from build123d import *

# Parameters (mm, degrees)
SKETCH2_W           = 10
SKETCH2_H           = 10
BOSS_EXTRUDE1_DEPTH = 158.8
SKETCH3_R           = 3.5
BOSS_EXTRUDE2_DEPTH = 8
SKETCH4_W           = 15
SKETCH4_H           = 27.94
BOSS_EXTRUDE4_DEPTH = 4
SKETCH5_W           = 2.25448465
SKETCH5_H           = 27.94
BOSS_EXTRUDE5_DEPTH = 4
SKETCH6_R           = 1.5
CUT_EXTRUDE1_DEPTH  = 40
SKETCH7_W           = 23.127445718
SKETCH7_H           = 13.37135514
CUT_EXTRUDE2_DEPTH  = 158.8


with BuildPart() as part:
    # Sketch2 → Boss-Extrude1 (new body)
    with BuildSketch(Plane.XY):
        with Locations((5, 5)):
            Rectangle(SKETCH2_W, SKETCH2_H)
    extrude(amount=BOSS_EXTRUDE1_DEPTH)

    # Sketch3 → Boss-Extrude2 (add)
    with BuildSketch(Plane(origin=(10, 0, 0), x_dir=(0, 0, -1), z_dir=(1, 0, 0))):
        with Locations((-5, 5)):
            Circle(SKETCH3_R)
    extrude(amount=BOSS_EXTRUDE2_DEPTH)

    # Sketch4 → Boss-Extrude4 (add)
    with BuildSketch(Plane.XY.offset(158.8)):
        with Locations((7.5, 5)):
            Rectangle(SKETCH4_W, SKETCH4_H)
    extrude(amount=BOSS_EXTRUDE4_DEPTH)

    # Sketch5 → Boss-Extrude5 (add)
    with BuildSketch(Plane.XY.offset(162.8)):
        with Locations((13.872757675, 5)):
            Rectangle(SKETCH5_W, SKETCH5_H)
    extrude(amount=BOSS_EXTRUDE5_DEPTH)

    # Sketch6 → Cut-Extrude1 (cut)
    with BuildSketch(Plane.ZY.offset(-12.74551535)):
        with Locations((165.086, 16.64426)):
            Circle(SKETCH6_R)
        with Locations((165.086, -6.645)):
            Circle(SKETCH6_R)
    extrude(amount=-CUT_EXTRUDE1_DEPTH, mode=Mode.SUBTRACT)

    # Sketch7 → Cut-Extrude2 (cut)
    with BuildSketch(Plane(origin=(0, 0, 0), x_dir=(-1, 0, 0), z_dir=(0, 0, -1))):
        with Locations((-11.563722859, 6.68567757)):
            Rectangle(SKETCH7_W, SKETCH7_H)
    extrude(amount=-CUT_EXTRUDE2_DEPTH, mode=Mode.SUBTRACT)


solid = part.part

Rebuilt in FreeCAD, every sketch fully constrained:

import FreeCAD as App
import Part
import Sketcher

V = App.Vector

doc = App.newDocument("Part")
params = doc.addObject("Spreadsheet::Sheet", "Params")
for row, (alias, value) in enumerate([
    ("sketch1_width", "10 mm"),
    ("pad1_length", "158.8 mm"),
    ("sketch2_diameter", "7 mm"),
    ("pad2_length", "8 mm"),
    ("sketch3_width", "15 mm"),
    ("sketch3_height", "27.94 mm"),
    ("pad3_length", "4 mm"),
    ("sketch4_height", "27.94 mm"),
    ("pad4_length", "4 mm"),
    ("sketch5_diameter", "3 mm"),
    ("pocket1_length", "40 mm"),
    ("pocket2_length", "158.8 mm"),
], start=1):
    params.set(f"A{row}", alias)
    params.set(f"B{row}", "=" + value)
    params.setAlias(f"B{row}", alias)

body = doc.addObject("PartDesign::Body", "Body")

# Sketch on XY plane
sketch1 = body.newObject("Sketcher::SketchObject", "Sketch")
sketch1.AttachmentSupport = (doc.getObject("XY_Plane"), [""])
sketch1.MapMode = "FlatFace"
sketch1.addGeometry(Part.LineSegment(V(0, 10, 0), V(0, 0, 0)), False)
sketch1.addGeometry(Part.LineSegment(V(0, 0, 0), V(10, 0, 0)), False)
sketch1.addGeometry(Part.LineSegment(V(10, 0, 0), V(10, 10, 0)), False)
sketch1.addGeometry(Part.LineSegment(V(10, 10, 0), V(0, 10, 0)), False)
sketch1.addConstraint(Sketcher.Constraint("Coincident", 0, 2, 1, 1))
sketch1.addConstraint(Sketcher.Constraint("Coincident", 1, 2, 2, 1))
sketch1.addConstraint(Sketcher.Constraint("Coincident", 2, 2, 3, 1))
sketch1.addConstraint(Sketcher.Constraint("Coincident", 3, 2, 0, 1))
sketch1.addConstraint(Sketcher.Constraint("Vertical", 0))
sketch1.addConstraint(Sketcher.Constraint("Horizontal", 1))
sketch1.addConstraint(Sketcher.Constraint("Vertical", 2))
sketch1.addConstraint(Sketcher.Constraint("Horizontal", 3))
sketch1.addConstraint(Sketcher.Constraint("Coincident", 0, 2, -1, 1))
sketch1.addConstraint(Sketcher.Constraint("Equal", 3, 0))
sketch1.addConstraint(Sketcher.Constraint("DistanceX", 1, 1, 1, 2, 10.0))
sketch1.setExpression("Constraints[10]", "Params.sketch1_width")
pad1 = body.newObject("PartDesign::Pad", "Pad")
pad1.Profile = sketch1
pad1.setExpression("Length", "Params.pad1_length")

# Sketch on YZ plane
sketch2 = body.newObject("Sketcher::SketchObject", "Sketch001")
sketch2.AttachmentSupport = (doc.getObject("YZ_Plane"), [""])
sketch2.MapMode = "FlatFace"
sketch2.AttachmentOffset = App.Placement(V(0, 0, 10), App.Rotation())
sketch2.addGeometry(Part.Circle(V(5, 5, 0), V(0, 0, 1), 3.5), False)
sketch2.addConstraint(Sketcher.Constraint("Diameter", 0, 7.0))
sketch2.addConstraint(Sketcher.Constraint("DistanceX", -1, 1, 0, 3, 5.0))
sketch2.addConstraint(Sketcher.Constraint("DistanceY", -1, 1, 0, 3, 5.0))
sketch2.setExpression("Constraints[0]", "Params.sketch2_diameter")
pad2 = body.newObject("PartDesign::Pad", "Pad001")
pad2.Profile = sketch2
pad2.setExpression("Length", "Params.pad2_length")

# Sketch on XY plane
sketch3 = body.newObject("Sketcher::SketchObject", "Sketch002")
sketch3.AttachmentSupport = (doc.getObject("XY_Plane"), [""])
sketch3.MapMode = "FlatFace"
sketch3.AttachmentOffset = App.Placement(V(0, 0, 158.8), App.Rotation())
sketch3.addGeometry(Part.LineSegment(V(0, 19, 0), V(0, -9, 0)), False)
sketch3.addGeometry(Part.LineSegment(V(0, -9, 0), V(15, -9, 0)), False)
sketch3.addGeometry(Part.LineSegment(V(15, -9, 0), V(15, 19, 0)), False)
sketch3.addGeometry(Part.LineSegment(V(15, 19, 0), V(0, 19, 0)), False)
sketch3.addConstraint(Sketcher.Constraint("Coincident", 0, 2, 1, 1))
sketch3.addConstraint(Sketcher.Constraint("Coincident", 1, 2, 2, 1))
sketch3.addConstraint(Sketcher.Constraint("Coincident", 2, 2, 3, 1))
sketch3.addConstraint(Sketcher.Constraint("Coincident", 3, 2, 0, 1))
sketch3.addConstraint(Sketcher.Constraint("Vertical", 0))
sketch3.addConstraint(Sketcher.Constraint("Horizontal", 1))
sketch3.addConstraint(Sketcher.Constraint("Vertical", 2))
sketch3.addConstraint(Sketcher.Constraint("Horizontal", 3))
sketch3.addConstraint(Sketcher.Constraint("PointOnObject", 0, 2, -2))
sketch3.addConstraint(Sketcher.Constraint("DistanceX", 1, 1, 1, 2, 15.0))
sketch3.addConstraint(Sketcher.Constraint("DistanceY", 0, 2, 0, 1, 27.94))
sketch3.addConstraint(Sketcher.Constraint("DistanceY", 0, 2, -1, 1, 8.97))
sketch3.setExpression("Constraints[9]", "Params.sketch3_width")
sketch3.setExpression("Constraints[10]", "Params.sketch3_height")
pad3 = body.newObject("PartDesign::Pad", "Pad002")
pad3.Profile = sketch3
pad3.setExpression("Length", "Params.pad3_length")

# Sketch on XY plane
sketch4 = body.newObject("Sketcher::SketchObject", "Sketch003")
sketch4.AttachmentSupport = (doc.getObject("XY_Plane"), [""])
sketch4.MapMode = "FlatFace"
sketch4.AttachmentOffset = App.Placement(V(0, 0, 162.8), App.Rotation())
sketch4.addGeometry(Part.LineSegment(V(12.7, 19, 0), V(12.7, -9, 0)), False)
sketch4.addGeometry(Part.LineSegment(V(12.7, -9, 0), V(15, -9, 0)), False)
sketch4.addGeometry(Part.LineSegment(V(15, -9, 0), V(15, 19, 0)), False)
sketch4.addGeometry(Part.LineSegment(V(15, 19, 0), V(12.7, 19, 0)), False)
sketch4.addConstraint(Sketcher.Constraint("Coincident", 0, 2, 1, 1))
sketch4.addConstraint(Sketcher.Constraint("Coincident", 1, 2, 2, 1))
sketch4.addConstraint(Sketcher.Constraint("Coincident", 2, 2, 3, 1))
sketch4.addConstraint(Sketcher.Constraint("Coincident", 3, 2, 0, 1))
sketch4.addConstraint(Sketcher.Constraint("Vertical", 0))
sketch4.addConstraint(Sketcher.Constraint("Horizontal", 1))
sketch4.addConstraint(Sketcher.Constraint("Vertical", 2))
sketch4.addConstraint(Sketcher.Constraint("Horizontal", 3))
sketch4.addConstraint(Sketcher.Constraint("DistanceX", -1, 1, 1, 2, 15.0))
sketch4.addConstraint(Sketcher.Constraint("DistanceY", 0, 2, 0, 1, 27.94))
sketch4.addConstraint(Sketcher.Constraint("DistanceY", 0, 2, -1, 1, 8.97))
sketch4.addConstraint(Sketcher.Constraint("DistanceX", 1, 1, 1, 2, 2.254485))
sketch4.setExpression("Constraints[9]", "Params.sketch4_height")
pad4 = body.newObject("PartDesign::Pad", "Pad003")
pad4.Profile = sketch4
pad4.setExpression("Length", "Params.pad4_length")

# Sketch on YZ plane
sketch5 = body.newObject("Sketcher::SketchObject", "Sketch004")
sketch5.AttachmentSupport = (doc.getObject("YZ_Plane"), [""])
sketch5.MapMode = "FlatFace"
sketch5.AttachmentOffset = App.Placement(V(0, 0, 12.745515), App.Rotation())
sketch5.addGeometry(Part.Circle(V(16.6, 165.1, 0), V(0, 0, 1), 1.5), False)
sketch5.addGeometry(Part.Circle(V(-6.6, 165.1, 0), V(0, 0, 1), 1.5), False)
sketch5.addConstraint(Sketcher.Constraint("Equal", 0, 1))
sketch5.addConstraint(Sketcher.Constraint("Horizontal", 0, 3, 1, 3))
sketch5.addConstraint(Sketcher.Constraint("Diameter", 0, 3.0))
sketch5.addConstraint(Sketcher.Constraint("DistanceY", -1, 1, 0, 3, 165.086))
sketch5.addConstraint(Sketcher.Constraint("DistanceX", 1, 3, -1, 1, 6.645))
sketch5.addConstraint(Sketcher.Constraint("DistanceX", -1, 1, 0, 3, 16.64426))
sketch5.setExpression("Constraints[2]", "Params.sketch5_diameter")
pocket1 = body.newObject("PartDesign::Pocket", "Pocket")
pocket1.Profile = sketch5
pocket1.setExpression("Length", "Params.pocket1_length")
pocket1.Reversed = True

# Sketch on XY plane
sketch6 = body.newObject("Sketcher::SketchObject", "Sketch005")
sketch6.AttachmentSupport = (doc.getObject("XY_Plane"), [""])
sketch6.MapMode = "FlatFace"
sketch6.addGeometry(Part.LineSegment(V(23, 13, 0), V(23, 0, 0)), False)
sketch6.addGeometry(Part.LineSegment(V(23, 0, 0), V(0, 0, 0)), False)
sketch6.addGeometry(Part.LineSegment(V(0, 0, 0), V(0, 13, 0)), False)
sketch6.addGeometry(Part.LineSegment(V(0, 13, 0), V(23, 13, 0)), False)
sketch6.addConstraint(Sketcher.Constraint("Coincident", 0, 2, 1, 1))
sketch6.addConstraint(Sketcher.Constraint("Coincident", 1, 2, 2, 1))
sketch6.addConstraint(Sketcher.Constraint("Coincident", 2, 2, 3, 1))
sketch6.addConstraint(Sketcher.Constraint("Coincident", 3, 2, 0, 1))
sketch6.addConstraint(Sketcher.Constraint("Vertical", 0))
sketch6.addConstraint(Sketcher.Constraint("Horizontal", 1))
sketch6.addConstraint(Sketcher.Constraint("Vertical", 2))
sketch6.addConstraint(Sketcher.Constraint("Horizontal", 3))
sketch6.addConstraint(Sketcher.Constraint("Coincident", 1, 2, -1, 1))
sketch6.addConstraint(Sketcher.Constraint("DistanceX", 1, 2, 1, 1, 23.127446))
sketch6.addConstraint(Sketcher.Constraint("DistanceY", 0, 2, 0, 1, 13.371355))
pocket2 = body.newObject("PartDesign::Pocket", "Pocket001")
pocket2.Profile = sketch6
pocket2.setExpression("Length", "Params.pocket2_length")
pocket2.Reversed = True

doc.recompute()
